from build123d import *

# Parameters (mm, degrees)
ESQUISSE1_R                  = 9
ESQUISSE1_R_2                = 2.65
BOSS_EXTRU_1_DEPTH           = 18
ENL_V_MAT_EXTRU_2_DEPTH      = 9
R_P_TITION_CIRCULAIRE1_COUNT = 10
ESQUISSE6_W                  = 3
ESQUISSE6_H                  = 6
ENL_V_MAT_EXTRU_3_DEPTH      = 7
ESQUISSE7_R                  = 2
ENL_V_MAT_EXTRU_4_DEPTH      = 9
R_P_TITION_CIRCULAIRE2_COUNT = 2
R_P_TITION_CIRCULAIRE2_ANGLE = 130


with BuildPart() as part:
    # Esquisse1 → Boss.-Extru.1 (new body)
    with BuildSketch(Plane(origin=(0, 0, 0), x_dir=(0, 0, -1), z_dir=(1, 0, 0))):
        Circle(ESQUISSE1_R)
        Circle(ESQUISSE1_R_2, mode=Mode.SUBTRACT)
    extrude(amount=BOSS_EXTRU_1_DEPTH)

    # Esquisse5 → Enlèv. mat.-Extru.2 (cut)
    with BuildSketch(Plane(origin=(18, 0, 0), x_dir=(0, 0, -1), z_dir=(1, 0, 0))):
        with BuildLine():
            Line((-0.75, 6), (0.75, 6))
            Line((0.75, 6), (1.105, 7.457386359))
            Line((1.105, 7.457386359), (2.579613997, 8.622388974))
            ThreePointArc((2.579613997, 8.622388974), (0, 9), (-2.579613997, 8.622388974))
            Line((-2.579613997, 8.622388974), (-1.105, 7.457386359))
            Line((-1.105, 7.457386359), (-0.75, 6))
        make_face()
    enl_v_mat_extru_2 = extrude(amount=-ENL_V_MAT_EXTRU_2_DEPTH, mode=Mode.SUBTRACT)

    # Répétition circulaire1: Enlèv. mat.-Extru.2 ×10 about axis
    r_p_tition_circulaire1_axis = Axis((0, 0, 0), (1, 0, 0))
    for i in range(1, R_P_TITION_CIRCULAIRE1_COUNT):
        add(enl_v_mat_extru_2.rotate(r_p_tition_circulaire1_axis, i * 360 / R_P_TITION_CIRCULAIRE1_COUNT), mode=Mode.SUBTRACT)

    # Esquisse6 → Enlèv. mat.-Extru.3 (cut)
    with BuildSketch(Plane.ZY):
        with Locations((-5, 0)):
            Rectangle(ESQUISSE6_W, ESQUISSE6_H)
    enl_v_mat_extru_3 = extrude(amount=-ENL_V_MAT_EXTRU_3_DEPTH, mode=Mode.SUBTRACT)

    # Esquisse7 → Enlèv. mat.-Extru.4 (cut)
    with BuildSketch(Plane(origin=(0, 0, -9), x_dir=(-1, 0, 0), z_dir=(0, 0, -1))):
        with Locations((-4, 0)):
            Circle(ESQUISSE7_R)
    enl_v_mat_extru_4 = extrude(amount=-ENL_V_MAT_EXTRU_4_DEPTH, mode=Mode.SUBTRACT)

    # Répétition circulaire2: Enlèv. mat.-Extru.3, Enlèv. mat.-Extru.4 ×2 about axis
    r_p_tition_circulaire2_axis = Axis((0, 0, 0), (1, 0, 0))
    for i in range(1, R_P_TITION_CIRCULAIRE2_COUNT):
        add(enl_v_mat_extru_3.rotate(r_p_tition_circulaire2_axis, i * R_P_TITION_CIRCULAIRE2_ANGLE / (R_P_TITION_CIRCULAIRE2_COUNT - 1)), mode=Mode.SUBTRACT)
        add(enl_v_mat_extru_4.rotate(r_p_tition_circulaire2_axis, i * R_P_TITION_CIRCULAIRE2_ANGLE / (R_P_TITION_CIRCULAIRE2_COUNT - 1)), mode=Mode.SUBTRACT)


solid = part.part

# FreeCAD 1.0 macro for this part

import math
import FreeCAD as App
import Part
import Sketcher
from FreeCAD import Vector

doc = App.newDocument("Part")
body = doc.addObject("PartDesign::Body", "Body")

sketch1 = body.newObject("Sketcher::SketchObject", "Sketch")
sketch1.AttachmentSupport = (doc.getObject("YZ_Plane"), [""])
sketch1.MapMode = "FlatFace"
sketch1.addGeometry(Part.Circle(Vector(0, 0, 0), Vector(0, 0, 1), 9), False)
sketch1.addGeometry(Part.Circle(Vector(0, 0, 0), Vector(0, 0, 1), 2.6), False)
sketch1.addConstraint(Sketcher.Constraint("Coincident", 0, 3, -1, 1))
sketch1.addConstraint(Sketcher.Constraint("Coincident", 1, 3, -1, 1))
sketch1.addConstraint(Sketcher.Constraint("Diameter", 0, 18.0))
sketch1.addConstraint(Sketcher.Constraint("Diameter", 1, 5.3))
pad1 = body.newObject("PartDesign::Pad", "Pad")
pad1.Profile = sketch1
pad1.Length = 18

sketch2 = body.newObject("Sketcher::SketchObject", "Sketch001")
sketch2.AttachmentSupport = (doc.getObject("YZ_Plane"), [""])
sketch2.MapMode = "FlatFace"
sketch2.AttachmentOffset = App.Placement(Vector(0, 0, 18), App.Rotation())
sketch2.addGeometry(Part.LineSegment(Vector(6, 0.8, 0), Vector(6, -0.8, 0)), False)
sketch2.addGeometry(Part.LineSegment(Vector(6, -0.8, 0), Vector(7.5, -1.1, 0)), False)
sketch2.addGeometry(Part.LineSegment(Vector(7.5, -1.1, 0), Vector(8.6, -2.6, 0)), False)
sketch2.addGeometry(Part.ArcOfCircle(Part.Circle(Vector(0, 0, 0), Vector(0, 0, 1), 9), math.radians(-17), math.radians(17)), False)
sketch2.addGeometry(Part.LineSegment(Vector(8.6, 2.6, 0), Vector(7.5, 1.1, 0)), False)
sketch2.addGeometry(Part.LineSegment(Vector(7.5, 1.1, 0), Vector(6, 0.8, 0)), False)
sketch2.addConstraint(Sketcher.Constraint("Coincident", 0, 2, 1, 1))
sketch2.addConstraint(Sketcher.Constraint("Coincident", 1, 2, 2, 1))
sketch2.addConstraint(Sketcher.Constraint("Coincident", 2, 2, 3, 1))
sketch2.addConstraint(Sketcher.Constraint("Coincident", 3, 2, 4, 1))
sketch2.addConstraint(Sketcher.Constraint("Coincident", 4, 2, 5, 1))
sketch2.addConstraint(Sketcher.Constraint("Coincident", 5, 2, 0, 1))
sketch2.addConstraint(Sketcher.Constraint("Vertical", 0))
sketch2.addConstraint(Sketcher.Constraint("Coincident", 3, 3, -1, 1))
sketch2.addConstraint(Sketcher.Constraint("Symmetric", 1, 2, 4, 2, -1))
sketch2.addConstraint(Sketcher.Constraint("Vertical", 2, 2, 3, 2))
sketch2.addConstraint(Sketcher.Constraint("Equal", 1, 5))
sketch2.addConstraint(Sketcher.Constraint("Radius", 3, 9.0))
sketch2.addConstraint(Sketcher.Constraint("DistanceY", 0, 2, 0, 1, 1.5))
sketch2.addConstraint(Sketcher.Constraint("DistanceX", -1, 1, 0, 2, 6.0))
sketch2.addConstraint(Sketcher.Constraint("Distance", 1, 1.5))
sketch2.addConstraint(Sketcher.Constraint("DistanceY", 1, 2, 4, 2, 2.21))
sketch2.addConstraint(Sketcher.Constraint("DistanceX", -1, 1, 2, 2, 8.622389))
pocket1 = body.newObject("PartDesign::Pocket", "Pocket")
pocket1.Profile = sketch2
pocket1.Length = 9
doc.recompute()

polarpattern = body.newObject("PartDesign::PolarPattern", "PolarPattern")
polarpattern.Originals = [pocket1]
polarpattern.Axis = (doc.getObject("X_Axis"), [""])
polarpattern.Angle = 360
polarpattern.Occurrences = 10
body.Tip = polarpattern

sketch3 = body.newObject("Sketcher::SketchObject", "Sketch002")
sketch3.AttachmentSupport = (doc.getObject("YZ_Plane"), [""])
sketch3.MapMode = "FlatFace"
sketch3.addGeometry(Part.LineSegment(Vector(3, -6.5, 0), Vector(-3, -6.5, 0)), False)
sketch3.addGeometry(Part.LineSegment(Vector(-3, -6.5, 0), Vector(-3, -3.5, 0)), False)
sketch3.addGeometry(Part.LineSegment(Vector(-3, -3.5, 0), Vector(3, -3.5, 0)), False)
sketch3.addGeometry(Part.LineSegment(Vector(3, -3.5, 0), Vector(3, -6.5, 0)), False)
sketch3.addConstraint(Sketcher.Constraint("Coincident", 0, 2, 1, 1))
sketch3.addConstraint(Sketcher.Constraint("Coincident", 1, 2, 2, 1))
sketch3.addConstraint(Sketcher.Constraint("Coincident", 2, 2, 3, 1))
sketch3.addConstraint(Sketcher.Constraint("Coincident", 3, 2, 0, 1))
sketch3.addConstraint(Sketcher.Constraint("Horizontal", 0))
sketch3.addConstraint(Sketcher.Constraint("Vertical", 1))
sketch3.addConstraint(Sketcher.Constraint("Horizontal", 2))
sketch3.addConstraint(Sketcher.Constraint("Vertical", 3))
sketch3.addConstraint(Sketcher.Constraint("DistanceX", 0, 2, 0, 1, 6.0))
sketch3.addConstraint(Sketcher.Constraint("DistanceY", 1, 1, 1, 2, 3.0))
sketch3.addConstraint(Sketcher.Constraint("DistanceX", 0, 2, -1, 1, 3.0))
sketch3.addConstraint(Sketcher.Constraint("DistanceY", 0, 2, -1, 1, 6.5))
pocket2 = body.newObject("PartDesign::Pocket", "Pocket001")
pocket2.Profile = sketch3
pocket2.Length = 7
pocket2.Reversed = True

sketch4 = body.newObject("Sketcher::SketchObject", "Sketch003")
sketch4.AttachmentSupport = (doc.getObject("XY_Plane"), [""])
sketch4.MapMode = "FlatFace"
sketch4.AttachmentOffset = App.Placement(Vector(0, 0, -9), App.Rotation())
sketch4.addGeometry(Part.Circle(Vector(4, 0, 0), Vector(0, 0, 1), 2), False)
sketch4.addConstraint(Sketcher.Constraint("PointOnObject", 0, 3, -1))
sketch4.addConstraint(Sketcher.Constraint("Diameter", 0, 4.0))
sketch4.addConstraint(Sketcher.Constraint("DistanceX", -1, 1, 0, 3, 4.0))
pocket3 = body.newObject("PartDesign::Pocket", "Pocket002")
pocket3.Profile = sketch4
pocket3.Length = 9
pocket3.Reversed = True
doc.recompute()

polarpattern2 = body.newObject("PartDesign::PolarPattern", "PolarPattern001")
polarpattern2.Originals = [pocket2, pocket3]
polarpattern2.Axis = (doc.getObject("X_Axis"), [""])
polarpattern2.Angle = 130
polarpattern2.Occurrences = 2
body.Tip = polarpattern2

doc.recompute()
